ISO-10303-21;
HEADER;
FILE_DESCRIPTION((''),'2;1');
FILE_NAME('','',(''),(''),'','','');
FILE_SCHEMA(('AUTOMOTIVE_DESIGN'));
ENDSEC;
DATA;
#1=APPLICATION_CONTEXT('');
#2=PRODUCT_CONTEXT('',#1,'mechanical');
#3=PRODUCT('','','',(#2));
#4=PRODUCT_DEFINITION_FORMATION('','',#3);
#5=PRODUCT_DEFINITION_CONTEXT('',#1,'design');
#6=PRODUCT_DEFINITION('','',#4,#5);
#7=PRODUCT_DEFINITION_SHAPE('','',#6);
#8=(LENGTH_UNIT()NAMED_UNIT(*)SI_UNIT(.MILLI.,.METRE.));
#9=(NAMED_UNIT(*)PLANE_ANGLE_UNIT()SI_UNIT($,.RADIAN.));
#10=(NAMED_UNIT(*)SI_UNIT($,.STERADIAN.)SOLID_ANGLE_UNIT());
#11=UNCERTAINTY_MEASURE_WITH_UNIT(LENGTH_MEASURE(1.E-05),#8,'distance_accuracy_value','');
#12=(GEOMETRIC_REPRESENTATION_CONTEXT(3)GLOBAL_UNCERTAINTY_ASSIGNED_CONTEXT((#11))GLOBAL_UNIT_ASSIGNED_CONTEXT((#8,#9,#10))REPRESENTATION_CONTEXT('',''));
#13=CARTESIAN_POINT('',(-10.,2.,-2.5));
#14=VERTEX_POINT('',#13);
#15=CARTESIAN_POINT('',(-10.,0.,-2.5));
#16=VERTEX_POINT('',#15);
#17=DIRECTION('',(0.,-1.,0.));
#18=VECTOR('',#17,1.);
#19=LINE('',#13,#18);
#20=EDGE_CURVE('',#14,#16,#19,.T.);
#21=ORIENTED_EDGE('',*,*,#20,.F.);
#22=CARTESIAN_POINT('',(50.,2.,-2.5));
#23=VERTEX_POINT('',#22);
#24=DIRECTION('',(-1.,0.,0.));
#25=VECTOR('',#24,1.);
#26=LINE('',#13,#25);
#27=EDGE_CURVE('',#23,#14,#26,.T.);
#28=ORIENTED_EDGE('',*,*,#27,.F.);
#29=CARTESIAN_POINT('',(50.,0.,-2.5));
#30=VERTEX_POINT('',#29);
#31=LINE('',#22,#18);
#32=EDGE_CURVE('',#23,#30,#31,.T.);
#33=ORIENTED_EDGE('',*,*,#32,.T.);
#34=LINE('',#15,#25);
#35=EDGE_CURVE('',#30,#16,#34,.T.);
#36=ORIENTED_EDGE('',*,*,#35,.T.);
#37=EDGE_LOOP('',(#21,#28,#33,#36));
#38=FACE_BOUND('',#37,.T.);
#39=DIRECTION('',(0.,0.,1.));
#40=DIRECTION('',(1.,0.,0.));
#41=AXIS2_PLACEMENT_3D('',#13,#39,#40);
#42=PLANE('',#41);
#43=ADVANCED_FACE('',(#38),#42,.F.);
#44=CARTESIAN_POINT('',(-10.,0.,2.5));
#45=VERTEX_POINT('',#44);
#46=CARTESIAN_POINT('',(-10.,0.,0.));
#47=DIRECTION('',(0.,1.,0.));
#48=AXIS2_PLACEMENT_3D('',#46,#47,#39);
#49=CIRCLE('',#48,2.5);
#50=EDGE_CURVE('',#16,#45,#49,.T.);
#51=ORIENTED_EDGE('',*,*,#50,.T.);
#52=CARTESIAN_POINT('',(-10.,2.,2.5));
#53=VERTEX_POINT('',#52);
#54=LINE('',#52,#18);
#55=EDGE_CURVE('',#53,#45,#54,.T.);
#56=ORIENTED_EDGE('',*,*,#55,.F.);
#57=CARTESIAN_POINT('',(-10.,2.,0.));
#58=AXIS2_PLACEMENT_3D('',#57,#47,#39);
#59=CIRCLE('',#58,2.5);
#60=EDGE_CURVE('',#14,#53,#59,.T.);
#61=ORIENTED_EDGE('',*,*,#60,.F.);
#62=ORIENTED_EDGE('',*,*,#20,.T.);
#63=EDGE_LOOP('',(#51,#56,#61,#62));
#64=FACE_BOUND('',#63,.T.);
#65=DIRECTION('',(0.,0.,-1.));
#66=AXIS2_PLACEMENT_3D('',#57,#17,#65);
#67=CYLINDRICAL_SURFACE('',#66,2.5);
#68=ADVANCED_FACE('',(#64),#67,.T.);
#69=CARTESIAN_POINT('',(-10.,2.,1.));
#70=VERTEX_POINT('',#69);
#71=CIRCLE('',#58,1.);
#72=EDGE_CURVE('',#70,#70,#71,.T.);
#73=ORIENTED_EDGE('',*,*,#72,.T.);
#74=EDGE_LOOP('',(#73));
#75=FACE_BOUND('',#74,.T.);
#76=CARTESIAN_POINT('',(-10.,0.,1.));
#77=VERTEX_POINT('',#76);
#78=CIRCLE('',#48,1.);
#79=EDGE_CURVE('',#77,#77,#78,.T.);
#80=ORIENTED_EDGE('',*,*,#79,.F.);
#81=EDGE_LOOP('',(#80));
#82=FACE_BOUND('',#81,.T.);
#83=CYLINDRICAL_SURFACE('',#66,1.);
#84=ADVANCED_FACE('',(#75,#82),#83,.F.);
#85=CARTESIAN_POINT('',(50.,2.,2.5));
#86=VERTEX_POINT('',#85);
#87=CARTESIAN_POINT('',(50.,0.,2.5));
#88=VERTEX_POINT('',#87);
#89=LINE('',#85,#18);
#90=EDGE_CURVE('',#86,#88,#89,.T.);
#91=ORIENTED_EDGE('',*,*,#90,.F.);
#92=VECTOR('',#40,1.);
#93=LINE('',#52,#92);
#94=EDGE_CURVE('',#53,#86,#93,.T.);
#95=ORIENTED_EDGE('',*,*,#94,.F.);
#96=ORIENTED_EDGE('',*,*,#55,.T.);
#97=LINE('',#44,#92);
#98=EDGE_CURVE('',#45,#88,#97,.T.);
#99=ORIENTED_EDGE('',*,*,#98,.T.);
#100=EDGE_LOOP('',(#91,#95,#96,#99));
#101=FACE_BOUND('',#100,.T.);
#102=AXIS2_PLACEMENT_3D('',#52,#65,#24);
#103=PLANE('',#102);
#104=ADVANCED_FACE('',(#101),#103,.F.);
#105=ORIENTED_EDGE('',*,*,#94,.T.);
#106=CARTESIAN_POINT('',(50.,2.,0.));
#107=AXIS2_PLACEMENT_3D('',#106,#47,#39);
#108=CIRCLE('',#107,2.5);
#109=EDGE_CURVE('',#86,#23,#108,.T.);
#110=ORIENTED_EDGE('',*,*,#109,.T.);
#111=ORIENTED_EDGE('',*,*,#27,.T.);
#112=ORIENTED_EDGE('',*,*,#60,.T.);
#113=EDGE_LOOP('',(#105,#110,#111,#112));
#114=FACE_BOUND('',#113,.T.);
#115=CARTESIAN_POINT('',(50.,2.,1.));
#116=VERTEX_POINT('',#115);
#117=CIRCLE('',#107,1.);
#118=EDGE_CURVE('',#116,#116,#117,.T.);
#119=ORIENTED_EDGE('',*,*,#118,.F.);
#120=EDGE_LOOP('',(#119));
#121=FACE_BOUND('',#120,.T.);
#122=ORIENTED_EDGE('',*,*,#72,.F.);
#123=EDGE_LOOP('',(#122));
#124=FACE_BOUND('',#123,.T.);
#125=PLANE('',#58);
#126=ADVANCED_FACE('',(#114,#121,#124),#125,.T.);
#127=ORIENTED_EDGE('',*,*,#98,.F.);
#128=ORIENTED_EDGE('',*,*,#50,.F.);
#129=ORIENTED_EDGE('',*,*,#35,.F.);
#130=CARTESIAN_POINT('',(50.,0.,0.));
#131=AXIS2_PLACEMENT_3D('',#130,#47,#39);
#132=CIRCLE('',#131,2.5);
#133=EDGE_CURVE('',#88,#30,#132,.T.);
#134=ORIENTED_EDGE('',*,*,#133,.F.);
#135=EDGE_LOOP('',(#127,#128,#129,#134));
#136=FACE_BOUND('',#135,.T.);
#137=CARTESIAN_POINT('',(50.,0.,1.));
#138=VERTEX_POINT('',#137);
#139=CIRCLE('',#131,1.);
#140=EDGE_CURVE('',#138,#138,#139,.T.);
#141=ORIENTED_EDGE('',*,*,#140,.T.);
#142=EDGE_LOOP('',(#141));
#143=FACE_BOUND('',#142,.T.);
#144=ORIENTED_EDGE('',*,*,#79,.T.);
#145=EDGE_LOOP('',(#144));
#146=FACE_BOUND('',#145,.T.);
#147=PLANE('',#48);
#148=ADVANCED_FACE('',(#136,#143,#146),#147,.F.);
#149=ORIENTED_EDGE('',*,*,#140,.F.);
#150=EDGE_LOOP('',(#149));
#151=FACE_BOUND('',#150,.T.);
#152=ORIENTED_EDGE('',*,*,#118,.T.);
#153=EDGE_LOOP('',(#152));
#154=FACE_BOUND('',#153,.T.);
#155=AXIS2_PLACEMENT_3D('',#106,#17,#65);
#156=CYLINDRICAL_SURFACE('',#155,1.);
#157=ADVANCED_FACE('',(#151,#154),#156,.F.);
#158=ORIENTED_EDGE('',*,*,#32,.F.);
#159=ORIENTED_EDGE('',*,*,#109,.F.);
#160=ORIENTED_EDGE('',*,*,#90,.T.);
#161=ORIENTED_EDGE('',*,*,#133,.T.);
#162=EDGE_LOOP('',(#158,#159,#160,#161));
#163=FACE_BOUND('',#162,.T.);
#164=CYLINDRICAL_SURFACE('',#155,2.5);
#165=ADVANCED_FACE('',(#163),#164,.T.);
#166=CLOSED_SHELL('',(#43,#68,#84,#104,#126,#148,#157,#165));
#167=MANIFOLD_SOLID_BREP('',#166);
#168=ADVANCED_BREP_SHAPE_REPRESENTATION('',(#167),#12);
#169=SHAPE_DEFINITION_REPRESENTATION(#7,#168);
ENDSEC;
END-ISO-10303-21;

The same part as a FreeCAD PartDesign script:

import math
import FreeCAD as App
import Part
import Sketcher
from FreeCAD import Vector

doc = App.newDocument("Part")
body = doc.addObject("PartDesign::Body", "Body")

sketch1 = body.newObject("Sketcher::SketchObject", "Sketch")
sketch1.AttachmentSupport = (doc.getObject("XZ_Plane"), [""])
sketch1.MapMode = "FlatFace"
sketch1.addGeometry([
    Part.LineSegment(Vector(50, -2.5, 0), Vector(-10, -2.5, 0)),
    Part.ArcOfCircle(Part.Circle(Vector(-10, 0, 0), Vector(0, 0, 1), 2.5), math.radians(90), math.radians(270)),
    Part.LineSegment(Vector(-10, 2.5, 0), Vector(50, 2.5, 0)),
    Part.ArcOfCircle(Part.Circle(Vector(50, 0, 0), Vector(0, 0, 1), 2.5), math.radians(-90), math.radians(90)),
    Part.Circle(Vector(50, 0, 0), Vector(0, 0, 1), 1),
    Part.Circle(Vector(-10, 0, 0), Vector(0, 0, 1), 1),
], False)
sketch1.addConstraint([
    Sketcher.Constraint("Tangent", 0, 2, 1, 2),
    Sketcher.Constraint("Tangent", 1, 1, 2, 1),
    Sketcher.Constraint("Tangent", 2, 2, 3, 2),
    Sketcher.Constraint("Tangent", 3, 1, 0, 1),
    Sketcher.Constraint("Horizontal", 0),
    Sketcher.Constraint("Horizontal", 2),
    Sketcher.Constraint("Coincident", 4, 3, 3, 3),
    Sketcher.Constraint("Coincident", 5, 3, 1, 3),
    Sketcher.Constraint("Equal", 4, 5),
    Sketcher.Constraint("PointOnObject", 1, 3, -1),
    Sketcher.Constraint("Diameter", 4, 2.0),
    Sketcher.Constraint("Radius", 1, 2.5),
    Sketcher.Constraint("DistanceX", 0, 2, 0, 1, 60.0),
    Sketcher.Constraint("DistanceX", 1, 3, -1, 1, 10.0),
])
pad1 = body.newObject("PartDesign::Pad", "Pad")
pad1.Profile = sketch1
pad1.Length = 2
pad1.Reversed = True

doc.recompute()
